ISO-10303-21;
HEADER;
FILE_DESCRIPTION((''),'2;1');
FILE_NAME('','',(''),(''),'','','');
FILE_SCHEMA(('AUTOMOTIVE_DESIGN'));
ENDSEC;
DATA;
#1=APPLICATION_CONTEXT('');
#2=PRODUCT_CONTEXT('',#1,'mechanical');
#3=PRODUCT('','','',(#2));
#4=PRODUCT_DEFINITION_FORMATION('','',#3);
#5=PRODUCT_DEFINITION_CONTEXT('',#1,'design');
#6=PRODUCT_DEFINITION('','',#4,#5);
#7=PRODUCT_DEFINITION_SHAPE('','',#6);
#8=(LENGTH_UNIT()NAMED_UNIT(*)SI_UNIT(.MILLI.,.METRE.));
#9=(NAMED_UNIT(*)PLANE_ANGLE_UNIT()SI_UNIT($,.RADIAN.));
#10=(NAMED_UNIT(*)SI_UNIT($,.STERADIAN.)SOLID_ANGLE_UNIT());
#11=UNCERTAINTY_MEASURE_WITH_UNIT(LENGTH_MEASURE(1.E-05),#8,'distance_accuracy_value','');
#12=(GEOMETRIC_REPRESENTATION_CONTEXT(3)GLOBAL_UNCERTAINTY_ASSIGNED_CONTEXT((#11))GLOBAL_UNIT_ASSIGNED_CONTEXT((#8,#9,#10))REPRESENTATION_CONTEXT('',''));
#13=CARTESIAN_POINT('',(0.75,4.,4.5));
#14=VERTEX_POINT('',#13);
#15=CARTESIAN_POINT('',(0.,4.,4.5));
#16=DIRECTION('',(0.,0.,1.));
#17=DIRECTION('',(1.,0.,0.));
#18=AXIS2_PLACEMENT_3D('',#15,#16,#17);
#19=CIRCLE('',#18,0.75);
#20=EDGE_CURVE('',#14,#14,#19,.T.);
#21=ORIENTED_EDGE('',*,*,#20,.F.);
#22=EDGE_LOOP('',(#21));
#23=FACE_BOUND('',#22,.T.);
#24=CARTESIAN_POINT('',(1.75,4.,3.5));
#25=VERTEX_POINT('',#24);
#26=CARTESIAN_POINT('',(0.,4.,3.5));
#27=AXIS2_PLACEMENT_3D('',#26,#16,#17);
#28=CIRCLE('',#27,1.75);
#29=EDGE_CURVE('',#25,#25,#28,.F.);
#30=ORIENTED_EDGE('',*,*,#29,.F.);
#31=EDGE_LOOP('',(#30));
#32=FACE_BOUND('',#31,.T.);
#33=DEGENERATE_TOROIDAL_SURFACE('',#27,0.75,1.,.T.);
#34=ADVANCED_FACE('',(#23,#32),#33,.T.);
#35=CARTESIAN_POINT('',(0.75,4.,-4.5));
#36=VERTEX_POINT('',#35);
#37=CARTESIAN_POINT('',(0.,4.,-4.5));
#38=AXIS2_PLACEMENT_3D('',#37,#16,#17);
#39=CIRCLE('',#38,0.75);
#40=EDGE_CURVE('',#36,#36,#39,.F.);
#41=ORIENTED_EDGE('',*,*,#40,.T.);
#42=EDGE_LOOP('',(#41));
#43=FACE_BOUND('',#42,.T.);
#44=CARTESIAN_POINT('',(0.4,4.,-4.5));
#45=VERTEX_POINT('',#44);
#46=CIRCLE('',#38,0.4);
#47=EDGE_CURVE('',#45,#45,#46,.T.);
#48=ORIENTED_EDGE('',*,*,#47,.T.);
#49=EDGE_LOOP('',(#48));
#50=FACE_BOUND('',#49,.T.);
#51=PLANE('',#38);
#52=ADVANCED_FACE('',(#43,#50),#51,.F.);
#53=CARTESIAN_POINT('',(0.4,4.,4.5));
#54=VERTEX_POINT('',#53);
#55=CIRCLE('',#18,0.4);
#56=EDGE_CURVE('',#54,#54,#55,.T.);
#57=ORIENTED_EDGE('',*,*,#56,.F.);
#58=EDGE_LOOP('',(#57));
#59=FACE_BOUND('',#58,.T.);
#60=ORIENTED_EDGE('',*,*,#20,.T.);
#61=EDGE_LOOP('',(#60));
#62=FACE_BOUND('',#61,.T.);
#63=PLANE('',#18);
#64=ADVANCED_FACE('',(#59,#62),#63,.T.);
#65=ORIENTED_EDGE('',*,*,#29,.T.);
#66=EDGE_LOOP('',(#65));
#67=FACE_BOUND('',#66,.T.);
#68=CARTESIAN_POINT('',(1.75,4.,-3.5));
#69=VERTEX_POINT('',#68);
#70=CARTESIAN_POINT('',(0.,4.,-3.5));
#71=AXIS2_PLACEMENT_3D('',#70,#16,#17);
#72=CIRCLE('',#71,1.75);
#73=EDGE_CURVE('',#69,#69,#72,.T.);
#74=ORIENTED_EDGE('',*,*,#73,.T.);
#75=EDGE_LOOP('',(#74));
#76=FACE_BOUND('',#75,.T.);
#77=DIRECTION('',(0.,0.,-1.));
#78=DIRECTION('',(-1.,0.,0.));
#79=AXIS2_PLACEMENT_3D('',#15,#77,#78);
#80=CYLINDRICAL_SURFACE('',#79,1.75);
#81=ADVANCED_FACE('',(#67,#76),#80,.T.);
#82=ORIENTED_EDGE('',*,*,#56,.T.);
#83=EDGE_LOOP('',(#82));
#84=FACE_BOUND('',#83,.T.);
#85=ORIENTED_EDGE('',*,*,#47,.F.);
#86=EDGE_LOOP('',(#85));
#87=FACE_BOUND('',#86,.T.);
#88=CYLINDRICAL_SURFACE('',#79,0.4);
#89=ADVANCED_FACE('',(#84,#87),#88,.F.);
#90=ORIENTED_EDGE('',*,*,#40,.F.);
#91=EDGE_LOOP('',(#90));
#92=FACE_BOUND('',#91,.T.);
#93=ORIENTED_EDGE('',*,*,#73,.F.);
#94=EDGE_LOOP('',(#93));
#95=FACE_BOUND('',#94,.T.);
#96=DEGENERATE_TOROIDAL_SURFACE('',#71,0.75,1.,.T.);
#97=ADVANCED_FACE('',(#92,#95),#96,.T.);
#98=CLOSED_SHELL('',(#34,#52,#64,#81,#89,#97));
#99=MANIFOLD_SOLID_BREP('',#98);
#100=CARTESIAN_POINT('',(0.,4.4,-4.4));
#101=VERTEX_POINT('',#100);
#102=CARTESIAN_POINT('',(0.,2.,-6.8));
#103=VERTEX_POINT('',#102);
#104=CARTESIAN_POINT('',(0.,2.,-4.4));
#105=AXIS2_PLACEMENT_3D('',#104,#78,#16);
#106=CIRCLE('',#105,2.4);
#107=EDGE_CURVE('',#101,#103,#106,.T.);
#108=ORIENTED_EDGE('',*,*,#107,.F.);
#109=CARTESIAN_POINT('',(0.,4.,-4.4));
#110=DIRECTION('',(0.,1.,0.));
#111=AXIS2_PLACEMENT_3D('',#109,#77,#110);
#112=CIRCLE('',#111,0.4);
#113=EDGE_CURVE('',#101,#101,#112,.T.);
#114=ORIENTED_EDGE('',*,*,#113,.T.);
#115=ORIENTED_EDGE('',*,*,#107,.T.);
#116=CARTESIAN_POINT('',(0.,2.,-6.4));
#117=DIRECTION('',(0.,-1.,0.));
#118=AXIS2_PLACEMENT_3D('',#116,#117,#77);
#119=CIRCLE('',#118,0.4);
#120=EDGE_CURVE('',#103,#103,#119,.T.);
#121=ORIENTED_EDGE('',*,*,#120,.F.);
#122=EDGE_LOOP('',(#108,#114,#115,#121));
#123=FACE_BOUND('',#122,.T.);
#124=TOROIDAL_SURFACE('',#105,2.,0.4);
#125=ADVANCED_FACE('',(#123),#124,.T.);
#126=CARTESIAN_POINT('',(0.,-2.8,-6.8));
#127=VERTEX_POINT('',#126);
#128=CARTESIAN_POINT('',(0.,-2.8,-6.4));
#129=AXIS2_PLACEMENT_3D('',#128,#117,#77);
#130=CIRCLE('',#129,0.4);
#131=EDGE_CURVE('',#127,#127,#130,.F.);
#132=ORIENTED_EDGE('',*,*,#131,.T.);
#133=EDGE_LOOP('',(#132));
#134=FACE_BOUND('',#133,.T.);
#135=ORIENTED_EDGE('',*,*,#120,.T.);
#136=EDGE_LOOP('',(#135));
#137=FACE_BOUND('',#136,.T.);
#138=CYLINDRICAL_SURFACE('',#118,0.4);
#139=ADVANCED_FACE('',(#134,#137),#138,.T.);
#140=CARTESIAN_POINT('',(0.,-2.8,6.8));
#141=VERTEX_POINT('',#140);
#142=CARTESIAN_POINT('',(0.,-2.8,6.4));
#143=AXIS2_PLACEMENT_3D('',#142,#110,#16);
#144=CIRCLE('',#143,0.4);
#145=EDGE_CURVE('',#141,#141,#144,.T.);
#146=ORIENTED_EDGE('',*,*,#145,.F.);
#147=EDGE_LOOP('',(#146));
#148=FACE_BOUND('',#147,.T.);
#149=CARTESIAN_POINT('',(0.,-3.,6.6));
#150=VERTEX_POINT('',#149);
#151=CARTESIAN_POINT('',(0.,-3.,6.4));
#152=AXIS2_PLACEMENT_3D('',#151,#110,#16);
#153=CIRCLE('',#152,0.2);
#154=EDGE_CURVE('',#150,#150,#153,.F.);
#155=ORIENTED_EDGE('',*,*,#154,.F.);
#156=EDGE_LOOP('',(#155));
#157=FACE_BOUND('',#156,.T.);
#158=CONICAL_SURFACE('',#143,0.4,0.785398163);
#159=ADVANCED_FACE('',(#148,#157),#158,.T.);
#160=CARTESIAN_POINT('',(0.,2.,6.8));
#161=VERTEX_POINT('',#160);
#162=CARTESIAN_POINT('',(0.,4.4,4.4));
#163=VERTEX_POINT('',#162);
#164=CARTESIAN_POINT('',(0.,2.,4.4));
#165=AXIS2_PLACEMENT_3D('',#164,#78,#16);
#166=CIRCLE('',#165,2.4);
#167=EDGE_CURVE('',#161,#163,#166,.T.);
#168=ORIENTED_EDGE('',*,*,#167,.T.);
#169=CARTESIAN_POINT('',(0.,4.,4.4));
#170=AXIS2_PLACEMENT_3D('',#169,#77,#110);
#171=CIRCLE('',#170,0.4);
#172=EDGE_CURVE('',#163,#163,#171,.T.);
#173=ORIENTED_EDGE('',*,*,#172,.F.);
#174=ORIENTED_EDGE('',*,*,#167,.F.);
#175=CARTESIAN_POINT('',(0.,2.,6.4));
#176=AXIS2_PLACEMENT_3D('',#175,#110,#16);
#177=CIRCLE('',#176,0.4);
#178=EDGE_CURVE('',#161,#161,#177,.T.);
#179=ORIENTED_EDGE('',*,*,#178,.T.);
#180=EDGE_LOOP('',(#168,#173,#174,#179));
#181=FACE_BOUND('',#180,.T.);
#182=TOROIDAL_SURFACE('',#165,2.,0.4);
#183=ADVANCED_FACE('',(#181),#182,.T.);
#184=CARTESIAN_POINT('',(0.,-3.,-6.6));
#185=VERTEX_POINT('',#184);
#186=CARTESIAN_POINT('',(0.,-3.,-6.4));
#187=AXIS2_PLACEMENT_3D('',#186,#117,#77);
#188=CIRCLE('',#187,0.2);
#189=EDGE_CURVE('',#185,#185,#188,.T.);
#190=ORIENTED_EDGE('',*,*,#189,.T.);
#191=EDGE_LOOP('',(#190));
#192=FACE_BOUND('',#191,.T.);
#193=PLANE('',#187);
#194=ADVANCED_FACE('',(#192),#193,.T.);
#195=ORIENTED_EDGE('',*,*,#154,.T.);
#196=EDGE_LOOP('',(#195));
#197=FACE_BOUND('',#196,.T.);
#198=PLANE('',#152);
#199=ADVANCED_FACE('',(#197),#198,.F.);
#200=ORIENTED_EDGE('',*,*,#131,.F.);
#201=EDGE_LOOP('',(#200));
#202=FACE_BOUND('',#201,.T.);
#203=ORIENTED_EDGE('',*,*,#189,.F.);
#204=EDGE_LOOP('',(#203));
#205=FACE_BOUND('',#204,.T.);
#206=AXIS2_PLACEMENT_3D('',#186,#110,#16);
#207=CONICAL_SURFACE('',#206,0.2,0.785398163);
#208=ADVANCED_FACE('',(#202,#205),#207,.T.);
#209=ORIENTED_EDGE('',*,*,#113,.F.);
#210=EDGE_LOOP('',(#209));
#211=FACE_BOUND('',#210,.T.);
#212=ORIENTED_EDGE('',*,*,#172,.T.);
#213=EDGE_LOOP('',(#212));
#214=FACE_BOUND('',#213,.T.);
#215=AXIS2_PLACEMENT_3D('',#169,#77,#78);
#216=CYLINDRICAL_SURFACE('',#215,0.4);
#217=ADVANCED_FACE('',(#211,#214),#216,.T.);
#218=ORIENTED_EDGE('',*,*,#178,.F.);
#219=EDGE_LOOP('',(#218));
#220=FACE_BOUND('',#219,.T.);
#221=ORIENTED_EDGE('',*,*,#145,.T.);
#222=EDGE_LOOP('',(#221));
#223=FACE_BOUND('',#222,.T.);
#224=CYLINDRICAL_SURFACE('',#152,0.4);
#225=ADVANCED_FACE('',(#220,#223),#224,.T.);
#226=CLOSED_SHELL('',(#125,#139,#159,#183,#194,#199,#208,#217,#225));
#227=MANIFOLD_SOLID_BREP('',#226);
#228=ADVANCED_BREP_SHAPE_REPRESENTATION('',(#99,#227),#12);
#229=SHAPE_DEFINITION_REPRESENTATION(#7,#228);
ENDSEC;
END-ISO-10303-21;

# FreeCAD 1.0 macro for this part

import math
import FreeCAD as App
import Part
import Sketcher
from FreeCAD import Vector
Q = App.Units.Quantity


def edges_at(feature, points):
    """Names of the edges that pass closest to the given points."""
    edges = feature.Shape.Edges
    near = lambda p: min(range(len(edges)), key=lambda i: edges[i].distToShape(Part.Vertex(*p))[0])
    return sorted({f"Edge{near(p) + 1}" for p in points})

doc = App.newDocument("Part")
body = doc.addObject("PartDesign::Body", "Body")

# Sketch on XZ plane
sketch1 = doc.addObject("Sketcher::SketchObject", "Sketch")
body.addObject(sketch1)
sketch1.AttachmentSupport = (doc.XZ_Plane, [""])
sketch1.MapMode = "FlatFace"
sketch1.AttachmentOffset = App.Placement(Vector(0, 0, 3), App.Rotation())
sketch1.addGeometry(Part.Circle(Vector(0, 6.4, 0), Vector(0, 0, 1), 0.4), False)
sketch1.addConstraint([
    Sketcher.Constraint("PointOnObject", 0, 3, -2),
    Sketcher.Constraint("Diameter", 0, Q("0.8 mm")),
    Sketcher.Constraint("DistanceY", -1, 1, 0, 3, Q("6.4 mm")),
])

# Sketch on YZ plane
sketch2 = doc.addObject("Sketcher::SketchObject", "Sketch001")
body.addObject(sketch2)
sketch2.AttachmentSupport = (doc.YZ_Plane, [""])
sketch2.MapMode = "FlatFace"
sketch2.addGeometry([
    Part.LineSegment(Vector(-3, 6.4, 0), Vector(2, 6.4, 0)),  # 0
    Part.ArcOfCircle(Part.Circle(Vector(2, 4.4, 0), Vector(0, 0, 1), 2), math.radians(0), math.radians(90)),  # 1
    Part.LineSegment(Vector(4, 4.4, 0), Vector(4, -4.4, 0)),  # 2
    Part.ArcOfCircle(Part.Circle(Vector(2, -4.4, 0), Vector(0, 0, 1), 2), math.radians(-90), math.radians(0)),  # 3
    Part.LineSegment(Vector(2, -6.4, 0), Vector(-3, -6.4, 0)),  # 4
], False)
sketch2.addConstraint([
    Sketcher.Constraint("Tangent", 0, 2, 1, 2),
    Sketcher.Constraint("Tangent", 1, 1, 2, 1),
    Sketcher.Constraint("Tangent", 2, 2, 3, 2),
    Sketcher.Constraint("Tangent", 3, 1, 4, 1),
    Sketcher.Constraint("Horizontal", 0),
    Sketcher.Constraint("Vertical", 2),
    Sketcher.Constraint("Horizontal", 4),
    Sketcher.Constraint("Equal", 1, 3),
    Sketcher.Constraint("Symmetric", 0, 1, 4, 2, -1),
    Sketcher.Constraint("Radius", 1, Q("2 mm")),
    Sketcher.Constraint("DistanceX", 0, 1, 0, 2, Q("5 mm")),
    Sketcher.Constraint("DistanceY", 2, 2, 2, 1, Q("8.8 mm")),
    Sketcher.Constraint("DistanceX", -1, 1, 1, 3, Q("2 mm")),
])
doc.recompute()

additivepipe = doc.addObject("PartDesign::AdditivePipe", "AdditivePipe")
body.addObject(additivepipe)
additivepipe.Profile = sketch1
additivepipe.Spine = (sketch2, ["Edge1", "Edge2", "Edge3", "Edge4", "Edge5"])
doc.recompute()

chamfer = doc.addObject("PartDesign::Chamfer", "Chamfer")
body.addObject(chamfer)
chamfer.Base = (additivepipe, edges_at(additivepipe, [(-0.4, -3, -6.4), (-0.4, -3, 6.4)]))
chamfer.Size = 0.2
body2 = doc.addObject("PartDesign::Body", "Body001")

# Sketch on XY plane
sketch3 = doc.addObject("Sketcher::SketchObject", "Sketch002")
body2.addObject(sketch3)
sketch3.AttachmentSupport = (doc.getObject("XY_Plane001"), [""])
sketch3.MapMode = "FlatFace"
sketch3.addGeometry([
    Part.Circle(Vector(0, 4, 0), Vector(0, 0, 1), 1.75),
    Part.Circle(Vector(0, 4, 0), Vector(0, 0, 1), 0.4),
], False)
sketch3.addConstraint([
    Sketcher.Constraint("Coincident", 1, 3, 0, 3),
    Sketcher.Constraint("PointOnObject", 0, 3, -2),
    Sketcher.Constraint("Diameter", 0, Q("3.5 mm")),
    Sketcher.Constraint("Diameter", 1, Q("0.8 mm")),
    Sketcher.Constraint("DistanceY", -1, 1, 0, 3, Q("4 mm")),
])
pad1 = doc.addObject("PartDesign::Pad", "Pad")
body2.addObject(pad1)
pad1.Profile = sketch3
pad1.Length = 9
pad1.Midplane = True
doc.recompute()

fillet = doc.addObject("PartDesign::Fillet", "Fillet")
body2.addObject(fillet)
fillet.Base = (pad1, edges_at(pad1, [(-1.75, 4, -4.5), (-1.75, 4, 4.5)]))
fillet.Radius = 1

doc.recompute()
